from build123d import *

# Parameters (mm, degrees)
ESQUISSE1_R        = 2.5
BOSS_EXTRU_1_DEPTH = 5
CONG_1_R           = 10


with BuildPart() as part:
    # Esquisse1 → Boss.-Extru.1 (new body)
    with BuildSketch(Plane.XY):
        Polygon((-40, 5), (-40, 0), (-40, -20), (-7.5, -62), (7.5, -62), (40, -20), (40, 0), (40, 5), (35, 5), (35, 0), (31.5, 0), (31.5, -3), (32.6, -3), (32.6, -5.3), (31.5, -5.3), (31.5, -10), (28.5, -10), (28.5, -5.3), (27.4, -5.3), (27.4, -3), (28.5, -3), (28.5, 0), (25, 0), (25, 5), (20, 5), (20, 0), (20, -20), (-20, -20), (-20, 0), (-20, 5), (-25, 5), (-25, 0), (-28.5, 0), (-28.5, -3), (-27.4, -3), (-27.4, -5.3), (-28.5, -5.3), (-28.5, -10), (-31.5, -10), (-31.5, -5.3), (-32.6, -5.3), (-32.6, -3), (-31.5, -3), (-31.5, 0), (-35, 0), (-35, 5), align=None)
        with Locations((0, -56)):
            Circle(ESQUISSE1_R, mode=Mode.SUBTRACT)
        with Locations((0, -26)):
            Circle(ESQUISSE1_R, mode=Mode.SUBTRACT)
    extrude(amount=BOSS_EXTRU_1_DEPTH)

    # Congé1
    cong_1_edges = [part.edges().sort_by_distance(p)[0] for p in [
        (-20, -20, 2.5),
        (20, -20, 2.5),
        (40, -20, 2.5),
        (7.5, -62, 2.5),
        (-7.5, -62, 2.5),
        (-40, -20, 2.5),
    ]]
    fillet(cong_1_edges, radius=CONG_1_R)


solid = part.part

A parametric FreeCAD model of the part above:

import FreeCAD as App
import Part
import Sketcher
from FreeCAD import Vector


def edges_at(feature, points):
    """Names of the edges that pass closest to the given points."""
    edges = feature.Shape.Edges
    near = lambda p: min(range(len(edges)), key=lambda i: edges[i].distToShape(Part.Vertex(*p))[0])
    return sorted({f"Edge{near(p) + 1}" for p in points})


def add_polygon(sketch, points):
    """Adds a closed chain of lines whose ends are joined by coincident constraints."""
    first, n = sketch.GeometryCount, len(points)
    for a, b in zip(points, points[1:] + points[:1]):
        sketch.addGeometry(Part.LineSegment(App.Vector(*a, 0), App.Vector(*b, 0)), False)
    for i in range(n):
        sketch.addConstraint(Sketcher.Constraint("Coincident", first + i, 2, first + (i + 1) % n, 1))

doc = App.newDocument("Part")
body = doc.addObject("PartDesign::Body", "Body")

sketch1 = body.newObject("Sketcher::SketchObject", "Sketch")
sketch1.AttachmentSupport = (doc.getObject("XY_Plane"), [""])
sketch1.MapMode = "FlatFace"
add_polygon(sketch1, [(-40, 5), (-40, -20), (-7.5, -62), (7.5, -62), (40, -20), (40, 5), (35, 5), (35, 0), (31.5, 0), (31.5, -3), (32.6, -3), (32.6, -5.3), (31.5, -5.3), (31.5, -10), (28.5, -10), (28.5, -5.3), (27.4, -5.3), (27.4, -3), (28.5, -3), (28.5, 0), (25, 0), (25, 5), (20, 5), (20, -20), (-20, -20), (-20, 5), (-25, 5), (-25, 0), (-28.5, 0), (-28.5, -3), (-27.4, -3), (-27.4, -5.3), (-28.5, -5.3), (-28.5, -10), (-31.5, -10), (-31.5, -5.3), (-32.6, -5.3), (-32.6, -3), (-31.5, -3), (-31.5, 0), (-35, 0), (-35, 5)])
sketch1.addGeometry(Part.Circle(Vector(0, -56, 0), Vector(0, 0, 1), 2.5), False)
sketch1.addGeometry(Part.Circle(Vector(0, -26, 0), Vector(0, 0, 1), 2.5), False)
sketch1.addConstraint([
    Sketcher.Constraint("Vertical", 0),
    Sketcher.Constraint("Horizontal", 2),
    Sketcher.Constraint("Vertical", 4),
    Sketcher.Constraint("Horizontal", 5),
    Sketcher.Constraint("Vertical", 6),
    Sketcher.Constraint("Horizontal", 7),
    Sketcher.Constraint("Vertical", 8),
    Sketcher.Constraint("Horizontal", 9),
    Sketcher.Constraint("Vertical", 10),
    Sketcher.Constraint("Horizontal", 11),
    Sketcher.Constraint("Vertical", 12),
    Sketcher.Constraint("Horizontal", 13),
    Sketcher.Constraint("Vertical", 14),
    Sketcher.Constraint("Horizontal", 15),
    Sketcher.Constraint("Vertical", 16),
    Sketcher.Constraint("Horizontal", 17),
    Sketcher.Constraint("Vertical", 18),
    Sketcher.Constraint("Horizontal", 19),
    Sketcher.Constraint("Vertical", 20),
    Sketcher.Constraint("Horizontal", 21),
    Sketcher.Constraint("Vertical", 22),
    Sketcher.Constraint("Horizontal", 23),
    Sketcher.Constraint("Vertical", 24),
    Sketcher.Constraint("Horizontal", 25),
    Sketcher.Constraint("Vertical", 26),
    Sketcher.Constraint("Horizontal", 27),
    Sketcher.Constraint("Vertical", 28),
    Sketcher.Constraint("Horizontal", 29),
    Sketcher.Constraint("Vertical", 30),
    Sketcher.Constraint("Horizontal", 31),
    Sketcher.Constraint("Vertical", 32),
    Sketcher.Constraint("Horizontal", 33),
    Sketcher.Constraint("Vertical", 34),
    Sketcher.Constraint("Horizontal", 35),
    Sketcher.Constraint("Vertical", 36),
    Sketcher.Constraint("Horizontal", 37),
    Sketcher.Constraint("Vertical", 38),
    Sketcher.Constraint("Horizontal", 39),
    Sketcher.Constraint("Vertical", 40),
    Sketcher.Constraint("Horizontal", 41),
    Sketcher.Constraint("Equal", 42, 43),
    Sketcher.Constraint("Symmetric", 19, 2, 26, 2, -1, 1),
    Sketcher.Constraint("Symmetric", 7, 2, 38, 2, -1, 1),
    Sketcher.Constraint("Symmetric", 0, 2, 3, 2, -2),
    Sketcher.Constraint("Symmetric", 21, 2, 24, 2, -2),
    Sketcher.Constraint("Symmetric", 18, 2, 27, 2, -2),
    Sketcher.Constraint("Symmetric", 16, 2, 29, 2, -2),
    Sketcher.Constraint("Symmetric", 14, 2, 31, 2, -2),
    Sketcher.Constraint("Symmetric", 12, 2, 33, 2, -2),
    Sketcher.Constraint("Symmetric", 10, 2, 35, 2, -2),
    Sketcher.Constraint("Symmetric", 6, 2, 39, 2, -2),
    Sketcher.Constraint("PointOnObject", 42, 3, -2),
    Sketcher.Constraint("PointOnObject", 43, 3, -2),
    Sketcher.Constraint("Horizontal", 11, 2, 14, 2),
    Sketcher.Constraint("Horizontal", 9, 2, 16, 2),
    Sketcher.Constraint("Horizontal", 5, 2, 20, 2),
    Sketcher.Constraint("Horizontal", 3, 2, 22, 2),
    Sketcher.Constraint("Horizontal", 29, 2, 36, 2),
    Sketcher.Constraint("Horizontal", 25, 2, 40, 2),
    Sketcher.Constraint("Vertical", 8, 2, 11, 2),
    Sketcher.Constraint("Vertical", 14, 2, 17, 2),
    Sketcher.Constraint("Equal", 11, 15),
    Sketcher.Constraint("Equal", 7, 19),
    Sketcher.Constraint("Equal", 5, 21),
    Sketcher.Constraint("Equal", 41, 6),
    Sketcher.Constraint("Equal", 33, 8),
    Sketcher.Constraint("Equal", 1, 3),
    Sketcher.Constraint("Diameter", 42, 5.0),
    Sketcher.Constraint("DistanceX", 2, 1, 2, 2, 15.0),
    Sketcher.Constraint("DistanceX", 5, 2, 5, 1, 5.0),
    Sketcher.Constraint("DistanceX", 13, 2, 13, 1, 3.0),
    Sketcher.Constraint("DistanceX", 23, 2, 23, 1, 40.0),
    Sketcher.Constraint("DistanceY", 0, 2, 0, 1, 25.0),
    Sketcher.Constraint("DistanceX", 7, 2, 7, 1, 3.5),
    Sketcher.Constraint("DistanceX", 9, 1, 9, 2, 1.1),
    Sketcher.Constraint("DistanceY", 10, 2, 10, 1, 2.3),
    Sketcher.Constraint("DistanceY", 12, 2, 12, 1, 4.7),
    Sketcher.Constraint("DistanceY", 42, 3, -1, 1, 56.0),
    Sketcher.Constraint("DistanceY", 43, 3, -1, 1, 26.0),
    Sketcher.Constraint("DistanceY", 1, 2, -1, 1, 62.0),
])
pad1 = body.newObject("PartDesign::Pad", "Pad")
pad1.Profile = sketch1
pad1.Length = 5
doc.recompute()

fillet = body.newObject("PartDesign::Fillet", "Fillet")
fillet.Base = (pad1, edges_at(pad1, [
    (-20, -20, 2.5),
    (20, -20, 2.5),
    (40, -20, 2.5),
    (7.5, -62, 2.5),
    (-7.5, -62, 2.5),
    (-40, -20, 2.5),
]))
fillet.Radius = 10

doc.recompute()
